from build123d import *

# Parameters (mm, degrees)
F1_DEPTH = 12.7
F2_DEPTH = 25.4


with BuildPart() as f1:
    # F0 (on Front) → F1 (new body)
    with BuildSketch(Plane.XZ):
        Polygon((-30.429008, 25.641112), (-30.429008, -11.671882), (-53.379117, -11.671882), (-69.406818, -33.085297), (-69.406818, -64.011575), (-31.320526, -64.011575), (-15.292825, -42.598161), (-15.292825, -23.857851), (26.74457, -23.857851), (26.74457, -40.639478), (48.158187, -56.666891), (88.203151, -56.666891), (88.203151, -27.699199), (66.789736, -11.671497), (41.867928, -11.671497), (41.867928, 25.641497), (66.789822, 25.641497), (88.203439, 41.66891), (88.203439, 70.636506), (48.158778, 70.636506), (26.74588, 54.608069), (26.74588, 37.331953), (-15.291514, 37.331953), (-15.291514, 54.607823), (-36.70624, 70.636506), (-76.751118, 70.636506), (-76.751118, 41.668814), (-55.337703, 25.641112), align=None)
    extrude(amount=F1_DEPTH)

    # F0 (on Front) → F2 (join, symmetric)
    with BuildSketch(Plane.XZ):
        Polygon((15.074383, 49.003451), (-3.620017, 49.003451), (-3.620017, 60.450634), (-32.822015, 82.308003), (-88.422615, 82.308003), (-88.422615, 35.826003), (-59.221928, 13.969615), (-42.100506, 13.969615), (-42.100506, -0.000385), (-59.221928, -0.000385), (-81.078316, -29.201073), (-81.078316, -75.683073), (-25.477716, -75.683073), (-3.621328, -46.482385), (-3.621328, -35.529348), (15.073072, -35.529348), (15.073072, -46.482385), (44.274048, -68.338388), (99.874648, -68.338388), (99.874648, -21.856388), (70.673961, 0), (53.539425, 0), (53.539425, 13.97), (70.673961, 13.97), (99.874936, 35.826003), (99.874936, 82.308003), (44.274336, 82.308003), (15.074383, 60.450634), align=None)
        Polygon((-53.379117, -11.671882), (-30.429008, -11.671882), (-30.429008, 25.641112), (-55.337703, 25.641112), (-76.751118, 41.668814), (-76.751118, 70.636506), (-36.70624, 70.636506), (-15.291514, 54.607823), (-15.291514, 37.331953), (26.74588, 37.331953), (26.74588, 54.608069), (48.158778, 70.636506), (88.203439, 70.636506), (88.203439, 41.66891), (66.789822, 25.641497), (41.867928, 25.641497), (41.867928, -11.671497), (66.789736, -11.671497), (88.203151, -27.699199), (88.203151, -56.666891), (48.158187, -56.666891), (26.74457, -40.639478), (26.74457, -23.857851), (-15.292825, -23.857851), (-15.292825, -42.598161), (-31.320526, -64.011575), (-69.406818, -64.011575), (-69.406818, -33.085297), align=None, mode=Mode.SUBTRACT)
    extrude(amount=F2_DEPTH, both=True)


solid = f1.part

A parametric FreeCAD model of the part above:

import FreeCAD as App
import Part
import Sketcher

V = App.Vector
Q = App.Units.Quantity

doc = App.newDocument("Part")
body = doc.addObject("PartDesign::Body", "Body")

# Sketch on XZ plane
sketch1 = body.newObject("Sketcher::SketchObject", "Sketch")
sketch1.AttachmentSupport = (doc.getObject("XZ_Plane"), [""])
sketch1.MapMode = "FlatFace"
sketch1.addGeometry([
    Part.LineSegment(V(-30.429008, 25.641112, 0), V(-30.429008, -11.671882, 0)),  # 0
    Part.LineSegment(V(-30.429008, -11.671882, 0), V(-53.379117, -11.671882, 0)),  # 1
    Part.LineSegment(V(-53.379117, -11.671882, 0), V(-69.406818, -33.085297, 0)),  # 2
    Part.LineSegment(V(-69.406818, -33.085297, 0), V(-69.406818, -64.011575, 0)),  # 3
    Part.LineSegment(V(-69.406818, -64.011575, 0), V(-31.320526, -64.011575, 0)),  # 4
    Part.LineSegment(V(-31.320526, -64.011575, 0), V(-15.292825, -42.598161, 0)),  # 5
    Part.LineSegment(V(-15.292825, -42.598161, 0), V(-15.292825, -23.857851, 0)),  # 6
    Part.LineSegment(V(-15.292825, -23.857851, 0), V(26.74457, -23.857851, 0)),  # 7
    Part.LineSegment(V(26.74457, -23.857851, 0), V(26.74457, -40.639478, 0)),  # 8
    Part.LineSegment(V(26.74457, -40.639478, 0), V(48.158187, -56.666891, 0)),  # 9
    Part.LineSegment(V(48.158187, -56.666891, 0), V(88.203151, -56.666891, 0)),  # 10
    Part.LineSegment(V(88.203151, -56.666891, 0), V(88.203151, -27.699199, 0)),  # 11
    Part.LineSegment(V(88.203151, -27.699199, 0), V(66.789736, -11.671497, 0)),  # 12
    Part.LineSegment(V(66.789736, -11.671497, 0), V(41.867928, -11.671497, 0)),  # 13
    Part.LineSegment(V(41.867928, -11.671497, 0), V(41.867928, 25.641497, 0)),  # 14
    Part.LineSegment(V(41.867928, 25.641497, 0), V(66.789822, 25.641497, 0)),  # 15
    Part.LineSegment(V(66.789822, 25.641497, 0), V(88.203439, 41.66891, 0)),  # 16
    Part.LineSegment(V(88.203439, 41.66891, 0), V(88.203439, 70.636506, 0)),  # 17
    Part.LineSegment(V(88.203439, 70.636506, 0), V(48.158778, 70.636506, 0)),  # 18
    Part.LineSegment(V(48.158778, 70.636506, 0), V(26.74588, 54.608069, 0)),  # 19
    Part.LineSegment(V(26.74588, 54.608069, 0), V(26.74588, 37.331953, 0)),  # 20
    Part.LineSegment(V(26.74588, 37.331953, 0), V(-15.291514, 37.331953, 0)),  # 21
    Part.LineSegment(V(-15.291514, 37.331953, 0), V(-15.291514, 54.607823, 0)),  # 22
    Part.LineSegment(V(-15.291514, 54.607823, 0), V(-36.70624, 70.636506, 0)),  # 23
    Part.LineSegment(V(-36.70624, 70.636506, 0), V(-76.751118, 70.636506, 0)),  # 24
    Part.LineSegment(V(-76.751118, 70.636506, 0), V(-76.751118, 41.668814, 0)),  # 25
    Part.LineSegment(V(-76.751118, 41.668814, 0), V(-55.337703, 25.641112, 0)),  # 26
    Part.LineSegment(V(-55.337703, 25.641112, 0), V(-30.429008, 25.641112, 0)),  # 27
], False)
sketch1.addConstraint([
    Sketcher.Constraint("Coincident", 0, 2, 1, 1),
    Sketcher.Constraint("Coincident", 1, 2, 2, 1),
    Sketcher.Constraint("Coincident", 2, 2, 3, 1),
    Sketcher.Constraint("Coincident", 3, 2, 4, 1),
    Sketcher.Constraint("Coincident", 4, 2, 5, 1),
    Sketcher.Constraint("Coincident", 5, 2, 6, 1),
    Sketcher.Constraint("Coincident", 6, 2, 7, 1),
    Sketcher.Constraint("Coincident", 7, 2, 8, 1),
    Sketcher.Constraint("Coincident", 8, 2, 9, 1),
    Sketcher.Constraint("Coincident", 9, 2, 10, 1),
    Sketcher.Constraint("Coincident", 10, 2, 11, 1),
    Sketcher.Constraint("Coincident", 11, 2, 12, 1),
    Sketcher.Constraint("Coincident", 12, 2, 13, 1),
    Sketcher.Constraint("Coincident", 13, 2, 14, 1),
    Sketcher.Constraint("Coincident", 14, 2, 15, 1),
    Sketcher.Constraint("Coincident", 15, 2, 16, 1),
    Sketcher.Constraint("Coincident", 16, 2, 17, 1),
    Sketcher.Constraint("Coincident", 17, 2, 18, 1),
    Sketcher.Constraint("Coincident", 18, 2, 19, 1),
    Sketcher.Constraint("Coincident", 19, 2, 20, 1),
    Sketcher.Constraint("Coincident", 20, 2, 21, 1),
    Sketcher.Constraint("Coincident", 21, 2, 22, 1),
    Sketcher.Constraint("Coincident", 22, 2, 23, 1),
    Sketcher.Constraint("Coincident", 23, 2, 24, 1),
    Sketcher.Constraint("Coincident", 24, 2, 25, 1),
    Sketcher.Constraint("Coincident", 25, 2, 26, 1),
    Sketcher.Constraint("Coincident", 26, 2, 27, 1),
    Sketcher.Constraint("Coincident", 27, 2, 0, 1),
    Sketcher.Constraint("Vertical", 0),
    Sketcher.Constraint("Horizontal", 1),
    Sketcher.Constraint("Vertical", 3),
    Sketcher.Constraint("Horizontal", 4),
    Sketcher.Constraint("Vertical", 6),
    Sketcher.Constraint("Horizontal", 7),
    Sketcher.Constraint("Vertical", 8),
    Sketcher.Constraint("Horizontal", 10),
    Sketcher.Constraint("Vertical", 11),
    Sketcher.Constraint("Horizontal", 13),
    Sketcher.Constraint("Vertical", 14),
    Sketcher.Constraint("Horizontal", 15),
    Sketcher.Constraint("Vertical", 17),
    Sketcher.Constraint("Horizontal", 18),
    Sketcher.Constraint("Vertical", 20),
    Sketcher.Constraint("Horizontal", 21),
    Sketcher.Constraint("Vertical", 22),
    Sketcher.Constraint("Horizontal", 24),
    Sketcher.Constraint("Vertical", 25),
    Sketcher.Constraint("Horizontal", 27),
    Sketcher.Constraint("Parallel", 2, 5),
    Sketcher.Constraint("Perpendicular", 5, 12),
    Sketcher.Constraint("Parallel", 12, 23),
    Sketcher.Constraint("Parallel", 23, 26),
    Sketcher.Constraint("Horizontal", 18, 2, 23, 2),
    Sketcher.Constraint("Equal", 7, 21),
    Sketcher.Constraint("Equal", 0, 14),
    Sketcher.Constraint("Equal", 11, 25),
    Sketcher.Constraint("Equal", 2, 5),
    Sketcher.Constraint("Equal", 5, 12),
    Sketcher.Constraint("Equal", 9, 16),
    Sketcher.Constraint("Equal", 12, 26),
    Sketcher.Constraint("DistanceX", 1, 2, 1, 1, 22.950109),
    Sketcher.Constraint("DistanceX", 13, 2, 13, 1, 24.921808),
    Sketcher.Constraint("DistanceX", 18, 2, 18, 1, 40.044661),
    Sketcher.Constraint("DistanceX", 24, 2, 24, 1, 40.044878),
    Sketcher.Constraint("DistanceY", 6, 1, 6, 2, 18.74031),
    Sketcher.Constraint("DistanceY", 11, 1, 11, 2, 28.967692),
    Sketcher.Constraint("DistanceY", 22, 1, 22, 2, 17.27587),
    Sketcher.Constraint("DistanceY", 11, 2, -1, 1, 27.699199),
    Sketcher.Constraint("DistanceX", 2, 2, 1, 2, 16.027701),
    Sketcher.Constraint("DistanceX", 24, 2, 1, 2, 23.372001),
    Sketcher.Constraint("DistanceX", 4, 1, 4, 2, 38.086292),
    Sketcher.Constraint("DistanceX", 7, 1, 7, 2, 42.037395),
    Sketcher.Constraint("DistanceX", 10, 1, 10, 2, 40.044964),
    Sketcher.Constraint("DistanceX", 15, 1, 15, 2, 24.921894),
    Sketcher.Constraint("DistanceX", 27, 1, 27, 2, 24.908695),
    Sketcher.Constraint("DistanceY", 0, 2, 0, 1, 37.312994),
    Sketcher.Constraint("DistanceY", 3, 2, 3, 1, 30.926278),
    Sketcher.Constraint("DistanceY", 8, 2, 8, 1, 16.781627),
    Sketcher.Constraint("DistanceY", 17, 1, 17, 2, 28.967596),
    Sketcher.Constraint("DistanceY", 20, 2, 20, 1, 17.276116),
    Sketcher.Constraint("DistanceX", 2, 2, -1, 1, 69.406818),
    Sketcher.Constraint("DistanceY", 5, 2, -1, 1, 42.598161),
    Sketcher.Constraint("DistanceX", -1, 1, 10, 2, 88.203151),
    Sketcher.Constraint("DistanceX", -1, 1, 19, 2, 26.74588),
])
pad1 = body.newObject("PartDesign::Pad", "Pad")
pad1.Profile = sketch1
pad1.Length = Q("0.5 in")

# Sketch on XZ plane
sketch2 = body.newObject("Sketcher::SketchObject", "Sketch001")
sketch2.AttachmentSupport = (doc.getObject("XZ_Plane"), [""])
sketch2.MapMode = "FlatFace"
sketch2.addGeometry([
    Part.LineSegment(V(15.074383, 49.003451, 0), V(-3.620017, 49.003451, 0)),  # 0
    Part.LineSegment(V(-3.620017, 49.003451, 0), V(-3.620017, 60.450634, 0)),  # 1
    Part.LineSegment(V(-3.620017, 60.450634, 0), V(-32.822015, 82.308003, 0)),  # 2
    Part.LineSegment(V(-32.822015, 82.308003, 0), V(-88.422615, 82.308003, 0)),  # 3
    Part.LineSegment(V(-88.422615, 82.308003, 0), V(-88.422615, 35.826003, 0)),  # 4
    Part.LineSegment(V(-88.422615, 35.826003, 0), V(-59.221928, 13.969615, 0)),  # 5
    Part.LineSegment(V(-59.221928, 13.969615, 0), V(-42.100506, 13.969615, 0)),  # 6
    Part.LineSegment(V(-42.100506, 13.969615, 0), V(-42.100506, -0.000385, 0)),  # 7
    Part.LineSegment(V(-42.100506, -0.000385, 0), V(-59.221928, -0.000385, 0)),  # 8
    Part.LineSegment(V(-59.221928, -0.000385, 0), V(-81.078316, -29.201073, 0)),  # 9
    Part.LineSegment(V(-81.078316, -29.201073, 0), V(-81.078316, -75.683073, 0)),  # 10
    Part.LineSegment(V(-81.078316, -75.683073, 0), V(-25.477716, -75.683073, 0)),  # 11
    Part.LineSegment(V(-25.477716, -75.683073, 0), V(-3.621328, -46.482385, 0)),  # 12
    Part.LineSegment(V(-3.621328, -46.482385, 0), V(-3.621328, -35.529348, 0)),  # 13
    Part.LineSegment(V(-3.621328, -35.529348, 0), V(15.073072, -35.529348, 0)),  # 14
    Part.LineSegment(V(15.073072, -35.529348, 0), V(15.073072, -46.482385, 0)),  # 15
    Part.LineSegment(V(15.073072, -46.482385, 0), V(44.274048, -68.338388, 0)),  # 16
    Part.LineSegment(V(44.274048, -68.338388, 0), V(99.874648, -68.338388, 0)),  # 17
    Part.LineSegment(V(99.874648, -68.338388, 0), V(99.874648, -21.856388, 0)),  # 18
    Part.LineSegment(V(99.874648, -21.856388, 0), V(70.673961, 0, 0)),  # 19
    Part.LineSegment(V(70.673961, 0, 0), V(53.539425, 0, 0)),  # 20
    Part.LineSegment(V(53.539425, 0, 0), V(53.539425, 13.97, 0)),  # 21
    Part.LineSegment(V(53.539425, 13.97, 0), V(70.673961, 13.97, 0)),  # 22
    Part.LineSegment(V(70.673961, 13.97, 0), V(99.874936, 35.826003, 0)),  # 23
    Part.LineSegment(V(99.874936, 35.826003, 0), V(99.874936, 82.308003, 0)),  # 24
    Part.LineSegment(V(99.874936, 82.308003, 0), V(44.274336, 82.308003, 0)),  # 25
    Part.LineSegment(V(44.274336, 82.308003, 0), V(15.074383, 60.450634, 0)),  # 26
    Part.LineSegment(V(15.074383, 60.450634, 0), V(15.074383, 49.003451, 0)),  # 27
    Part.LineSegment(V(-69.406818, -33.085297, 0), V(-53.379117, -11.671882, 0)),  # 28
    Part.LineSegment(V(-53.379117, -11.671882, 0), V(-30.429008, -11.671882, 0)),  # 29
    Part.LineSegment(V(-30.429008, -11.671882, 0), V(-30.429008, 25.641112, 0)),  # 30
    Part.LineSegment(V(-30.429008, 25.641112, 0), V(-55.337703, 25.641112, 0)),  # 31
    Part.LineSegment(V(-55.337703, 25.641112, 0), V(-76.751118, 41.668814, 0)),  # 32
    Part.LineSegment(V(-76.751118, 41.668814, 0), V(-76.751118, 70.636506, 0)),  # 33
    Part.LineSegment(V(-76.751118, 70.636506, 0), V(-36.70624, 70.636506, 0)),  # 34
    Part.LineSegment(V(-36.70624, 70.636506, 0), V(-15.291514, 54.607823, 0)),  # 35
    Part.LineSegment(V(-15.291514, 54.607823, 0), V(-15.291514, 37.331953, 0)),  # 36
    Part.LineSegment(V(-15.291514, 37.331953, 0), V(26.74588, 37.331953, 0)),  # 37
    Part.LineSegment(V(26.74588, 37.331953, 0), V(26.74588, 54.608069, 0)),  # 38
    Part.LineSegment(V(26.74588, 54.608069, 0), V(48.158778, 70.636506, 0)),  # 39
    Part.LineSegment(V(48.158778, 70.636506, 0), V(88.203439, 70.636506, 0)),  # 40
    Part.LineSegment(V(88.203439, 70.636506, 0), V(88.203439, 41.66891, 0)),  # 41
    Part.LineSegment(V(88.203439, 41.66891, 0), V(66.789822, 25.641497, 0)),  # 42
    Part.LineSegment(V(66.789822, 25.641497, 0), V(41.867928, 25.641497, 0)),  # 43
    Part.LineSegment(V(41.867928, 25.641497, 0), V(41.867928, -11.671497, 0)),  # 44
    Part.LineSegment(V(41.867928, -11.671497, 0), V(66.789736, -11.671497, 0)),  # 45
    Part.LineSegment(V(66.789736, -11.671497, 0), V(88.203151, -27.699199, 0)),  # 46
    Part.LineSegment(V(88.203151, -27.699199, 0), V(88.203151, -56.666891, 0)),  # 47
    Part.LineSegment(V(88.203151, -56.666891, 0), V(48.158187, -56.666891, 0)),  # 48
    Part.LineSegment(V(48.158187, -56.666891, 0), V(26.74457, -40.639478, 0)),  # 49
    Part.LineSegment(V(26.74457, -40.639478, 0), V(26.74457, -23.857851, 0)),  # 50
    Part.LineSegment(V(26.74457, -23.857851, 0), V(-15.292825, -23.857851, 0)),  # 51
    Part.LineSegment(V(-15.292825, -23.857851, 0), V(-15.292825, -42.598161, 0)),  # 52
    Part.LineSegment(V(-15.292825, -42.598161, 0), V(-31.320526, -64.011575, 0)),  # 53
    Part.LineSegment(V(-31.320526, -64.011575, 0), V(-69.406818, -64.011575, 0)),  # 54
    Part.LineSegment(V(-69.406818, -64.011575, 0), V(-69.406818, -33.085297, 0)),  # 55
], False)
sketch2.addConstraint([
    Sketcher.Constraint("Coincident", 0, 2, 1, 1),
    Sketcher.Constraint("Coincident", 1, 2, 2, 1),
    Sketcher.Constraint("Coincident", 2, 2, 3, 1),
    Sketcher.Constraint("Coincident", 3, 2, 4, 1),
    Sketcher.Constraint("Coincident", 4, 2, 5, 1),
    Sketcher.Constraint("Coincident", 5, 2, 6, 1),
    Sketcher.Constraint("Coincident", 6, 2, 7, 1),
    Sketcher.Constraint("Coincident", 7, 2, 8, 1),
    Sketcher.Constraint("Coincident", 8, 2, 9, 1),
    Sketcher.Constraint("Coincident", 9, 2, 10, 1),
    Sketcher.Constraint("Coincident", 10, 2, 11, 1),
    Sketcher.Constraint("Coincident", 11, 2, 12, 1),
    Sketcher.Constraint("Coincident", 12, 2, 13, 1),
    Sketcher.Constraint("Coincident", 13, 2, 14, 1),
    Sketcher.Constraint("Coincident", 14, 2, 15, 1),
    Sketcher.Constraint("Coincident", 15, 2, 16, 1),
    Sketcher.Constraint("Coincident", 16, 2, 17, 1),
    Sketcher.Constraint("Coincident", 17, 2, 18, 1),
    Sketcher.Constraint("Coincident", 18, 2, 19, 1),
    Sketcher.Constraint("Coincident", 19, 2, 20, 1),
    Sketcher.Constraint("Coincident", 20, 2, 21, 1),
    Sketcher.Constraint("Coincident", 21, 2, 22, 1),
    Sketcher.Constraint("Coincident", 22, 2, 23, 1),
    Sketcher.Constraint("Coincident", 23, 2, 24, 1),
    Sketcher.Constraint("Coincident", 24, 2, 25, 1),
    Sketcher.Constraint("Coincident", 25, 2, 26, 1),
    Sketcher.Constraint("Coincident", 26, 2, 27, 1),
    Sketcher.Constraint("Coincident", 27, 2, 0, 1),
    Sketcher.Constraint("Coincident", 28, 2, 29, 1),
    Sketcher.Constraint("Coincident", 29, 2, 30, 1),
    Sketcher.Constraint("Coincident", 30, 2, 31, 1),
    Sketcher.Constraint("Coincident", 31, 2, 32, 1),
    Sketcher.Constraint("Coincident", 32, 2, 33, 1),
    Sketcher.Constraint("Coincident", 33, 2, 34, 1),
    Sketcher.Constraint("Coincident", 34, 2, 35, 1),
    Sketcher.Constraint("Coincident", 35, 2, 36, 1),
    Sketcher.Constraint("Coincident", 36, 2, 37, 1),
    Sketcher.Constraint("Coincident", 37, 2, 38, 1),
    Sketcher.Constraint("Coincident", 38, 2, 39, 1),
    Sketcher.Constraint("Coincident", 39, 2, 40, 1),
    Sketcher.Constraint("Coincident", 40, 2, 41, 1),
    Sketcher.Constraint("Coincident", 41, 2, 42, 1),
    Sketcher.Constraint("Coincident", 42, 2, 43, 1),
    Sketcher.Constraint("Coincident", 43, 2, 44, 1),
    Sketcher.Constraint("Coincident", 44, 2, 45, 1),
    Sketcher.Constraint("Coincident", 45, 2, 46, 1),
    Sketcher.Constraint("Coincident", 46, 2, 47, 1),
    Sketcher.Constraint("Coincident", 47, 2, 48, 1),
    Sketcher.Constraint("Coincident", 48, 2, 49, 1),
    Sketcher.Constraint("Coincident", 49, 2, 50, 1),
    Sketcher.Constraint("Coincident", 50, 2, 51, 1),
    Sketcher.Constraint("Coincident", 51, 2, 52, 1),
    Sketcher.Constraint("Coincident", 52, 2, 53, 1),
    Sketcher.Constraint("Coincident", 53, 2, 54, 1),
    Sketcher.Constraint("Coincident", 54, 2, 55, 1),
    Sketcher.Constraint("Coincident", 55, 2, 28, 1),
    Sketcher.Constraint("Horizontal", 0),
    Sketcher.Constraint("Vertical", 1),
    Sketcher.Constraint("Horizontal", 3),
    Sketcher.Constraint("Vertical", 4),
    Sketcher.Constraint("Horizontal", 6),
    Sketcher.Constraint("Vertical", 7),
    Sketcher.Constraint("Horizontal", 8),
    Sketcher.Constraint("Vertical", 10),
    Sketcher.Constraint("Horizontal", 11),
    Sketcher.Constraint("Vertical", 13),
    Sketcher.Constraint("Horizontal", 14),
    Sketcher.Constraint("Vertical", 15),
    Sketcher.Constraint("Horizontal", 17),
    Sketcher.Constraint("Vertical", 18),
    Sketcher.Constraint("Horizontal", 20),
    Sketcher.Constraint("Vertical", 21),
    Sketcher.Constraint("Horizontal", 22),
    Sketcher.Constraint("Vertical", 24),
    Sketcher.Constraint("Horizontal", 25),
    Sketcher.Constraint("Vertical", 27),
    Sketcher.Constraint("Horizontal", 29),
    Sketcher.Constraint("Vertical", 30),
    Sketcher.Constraint("Horizontal", 31),
    Sketcher.Constraint("Vertical", 33),
    Sketcher.Constraint("Horizontal", 34),
    Sketcher.Constraint("Vertical", 36),
    Sketcher.Constraint("Horizontal", 37),
    Sketcher.Constraint("Vertical", 38),
    Sketcher.Constraint("Horizontal", 40),
    Sketcher.Constraint("Vertical", 41),
    Sketcher.Constraint("Horizontal", 43),
    Sketcher.Constraint("Vertical", 44),
    Sketcher.Constraint("Horizontal", 45),
    Sketcher.Constraint("Vertical", 47),
    Sketcher.Constraint("Horizontal", 48),
    Sketcher.Constraint("Vertical", 50),
    Sketcher.Constraint("Horizontal", 51),
    Sketcher.Constraint("Vertical", 52),
    Sketcher.Constraint("Horizontal", 54),
    Sketcher.Constraint("Vertical", 55),
    Sketcher.Constraint("PointOnObject", 19, 2, -1),
    Sketcher.Constraint("Parallel", 2, 5),
    Sketcher.Constraint("Perpendicular", 5, 9),
    Sketcher.Constraint("Parallel", 9, 12),
    Sketcher.Constraint("Perpendicular", 12, 19),
    Sketcher.Constraint("Perpendicular", 19, 28),
    Sketcher.Constraint("Perpendicular", 28, 32),
    Sketcher.Constraint("Parallel", 32, 35),
    Sketcher.Constraint("Parallel", 26, 39),
    Sketcher.Constraint("Parallel", 23, 42),
    Sketcher.Constraint("Parallel", 35, 46),
    Sketcher.Constraint("Parallel", 16, 49),
    Sketcher.Constraint("Perpendicular", 46, 53),
    Sketcher.Constraint("Horizontal", 12, 2, 15, 2),
    Sketcher.Constraint("Horizontal", 4, 2, 23, 2),
    Sketcher.Constraint("Horizontal", 3, 2, 24, 2),
    Sketcher.Constraint("Horizontal", 1, 2, 26, 2),
    Sketcher.Constraint("Horizontal", 34, 2, 39, 2),
    Sketcher.Constraint("Vertical", 5, 2, 8, 2),
    Sketcher.Constraint("Vertical", 19, 2, 22, 2),
    Sketcher.Constraint("Equal", 3, 11),
    Sketcher.Constraint("Equal", 0, 14),
    Sketcher.Constraint("Equal", 11, 17),
    Sketcher.Constraint("Equal", 17, 25),
    Sketcher.Constraint("Equal", 37, 51),
    Sketcher.Constraint("Equal", 4, 10),
    Sketcher.Constraint("Equal", 10, 18),
    Sketcher.Constraint("Equal", 7, 21),
    Sketcher.Constraint("Equal", 30, 44),
    Sketcher.Constraint("Equal", 33, 47),
    Sketcher.Constraint("Equal", 5, 9),
    Sketcher.Constraint("Equal", 9, 12),
    Sketcher.Constraint("Equal", 12, 16),
    Sketcher.Constraint("Equal", 16, 19),
    Sketcher.Constraint("Equal", 19, 23),
    Sketcher.Constraint("Equal", 23, 26),
    Sketcher.Constraint("Equal", 28, 32),
    Sketcher.Constraint("Equal", 32, 46),
    Sketcher.Constraint("Equal", 42, 49),
    Sketcher.Constraint("Equal", 46, 53),
    Sketcher.Constraint("DistanceY", 4, 2, 4, 1, Q("1.83 in")),
    Sketcher.Constraint("DistanceY", 7, 2, 7, 1, Q("0.55 in")),
    Sketcher.Constraint("DistanceX", 0, 2, 0, 1, Q("0.736 in")),
    Sketcher.Constraint("DistanceX", 3, 2, 3, 1, Q("2.189 in")),
    Sketcher.Constraint("Distance", 5, Q("1.436 in")),
    Sketcher.Constraint("DistanceX", 6, 1, 6, 2, 17.121422),
    Sketcher.Constraint("DistanceX", 29, 1, 29, 2, 22.950109),
    Sketcher.Constraint("DistanceX", 34, 1, 34, 2, 40.044878),
    Sketcher.Constraint("DistanceX", 40, 1, 40, 2, 40.044661),
    Sketcher.Constraint("DistanceX", 45, 1, 45, 2, 24.921808),
    Sketcher.Constraint("DistanceY", 33, 1, 33, 2, 28.967692),
    Sketcher.Constraint("DistanceY", 36, 2, 36, 1, 17.27587),
    Sketcher.Constraint("DistanceY", 52, 2, 52, 1, 18.74031),
    Sketcher.Constraint("DistanceY", 46, 2, -1, 1, 27.699199),
    Sketcher.Constraint("DistanceX", 4, 2, 9, 2, 7.344299),
    Sketcher.Constraint("DistanceX", 9, 2, 28, 2, 27.699199),
    Sketcher.Constraint("DistanceY", 31, 2, 32, 2, 16.027702),
    Sketcher.Constraint("DistanceY", 5, 2, 32, 2, 27.699199),
    Sketcher.Constraint("DistanceX", 13, 2, 49, 2, 30.365898),
    Sketcher.Constraint("DistanceX", 53, 2, 12, 2, 27.699198),
    Sketcher.Constraint("DistanceY", 54, 2, 9, 2, 34.810502),
    Sketcher.Constraint("DistanceX", 20, 2, 20, 1, 17.134536),
    Sketcher.Constraint("DistanceX", 31, 2, 31, 1, 24.908695),
    Sketcher.Constraint("DistanceX", 43, 2, 43, 1, 24.921894),
    Sketcher.Constraint("DistanceX", 48, 2, 48, 1, 40.044964),
    Sketcher.Constraint("DistanceY", 1, 1, 1, 2, 11.447183),
    Sketcher.Constraint("DistanceY", 13, 1, 13, 2, 10.953037),
    Sketcher.Constraint("DistanceY", 30, 1, 30, 2, 37.312994),
    Sketcher.Constraint("DistanceY", 38, 1, 38, 2, 17.276116),
    Sketcher.Constraint("DistanceY", 41, 2, 41, 1, 28.967596),
    Sketcher.Constraint("DistanceY", -1, 1, 0, 2, 49.003451),
    Sketcher.Constraint("DistanceX", 12, 2, -1, 1, 3.621328),
])
pad2 = body.newObject("PartDesign::Pad", "Pad001")
pad2.Profile = sketch2
pad2.Length = Q("2 in")
pad2.Midplane = True

doc.recompute()
